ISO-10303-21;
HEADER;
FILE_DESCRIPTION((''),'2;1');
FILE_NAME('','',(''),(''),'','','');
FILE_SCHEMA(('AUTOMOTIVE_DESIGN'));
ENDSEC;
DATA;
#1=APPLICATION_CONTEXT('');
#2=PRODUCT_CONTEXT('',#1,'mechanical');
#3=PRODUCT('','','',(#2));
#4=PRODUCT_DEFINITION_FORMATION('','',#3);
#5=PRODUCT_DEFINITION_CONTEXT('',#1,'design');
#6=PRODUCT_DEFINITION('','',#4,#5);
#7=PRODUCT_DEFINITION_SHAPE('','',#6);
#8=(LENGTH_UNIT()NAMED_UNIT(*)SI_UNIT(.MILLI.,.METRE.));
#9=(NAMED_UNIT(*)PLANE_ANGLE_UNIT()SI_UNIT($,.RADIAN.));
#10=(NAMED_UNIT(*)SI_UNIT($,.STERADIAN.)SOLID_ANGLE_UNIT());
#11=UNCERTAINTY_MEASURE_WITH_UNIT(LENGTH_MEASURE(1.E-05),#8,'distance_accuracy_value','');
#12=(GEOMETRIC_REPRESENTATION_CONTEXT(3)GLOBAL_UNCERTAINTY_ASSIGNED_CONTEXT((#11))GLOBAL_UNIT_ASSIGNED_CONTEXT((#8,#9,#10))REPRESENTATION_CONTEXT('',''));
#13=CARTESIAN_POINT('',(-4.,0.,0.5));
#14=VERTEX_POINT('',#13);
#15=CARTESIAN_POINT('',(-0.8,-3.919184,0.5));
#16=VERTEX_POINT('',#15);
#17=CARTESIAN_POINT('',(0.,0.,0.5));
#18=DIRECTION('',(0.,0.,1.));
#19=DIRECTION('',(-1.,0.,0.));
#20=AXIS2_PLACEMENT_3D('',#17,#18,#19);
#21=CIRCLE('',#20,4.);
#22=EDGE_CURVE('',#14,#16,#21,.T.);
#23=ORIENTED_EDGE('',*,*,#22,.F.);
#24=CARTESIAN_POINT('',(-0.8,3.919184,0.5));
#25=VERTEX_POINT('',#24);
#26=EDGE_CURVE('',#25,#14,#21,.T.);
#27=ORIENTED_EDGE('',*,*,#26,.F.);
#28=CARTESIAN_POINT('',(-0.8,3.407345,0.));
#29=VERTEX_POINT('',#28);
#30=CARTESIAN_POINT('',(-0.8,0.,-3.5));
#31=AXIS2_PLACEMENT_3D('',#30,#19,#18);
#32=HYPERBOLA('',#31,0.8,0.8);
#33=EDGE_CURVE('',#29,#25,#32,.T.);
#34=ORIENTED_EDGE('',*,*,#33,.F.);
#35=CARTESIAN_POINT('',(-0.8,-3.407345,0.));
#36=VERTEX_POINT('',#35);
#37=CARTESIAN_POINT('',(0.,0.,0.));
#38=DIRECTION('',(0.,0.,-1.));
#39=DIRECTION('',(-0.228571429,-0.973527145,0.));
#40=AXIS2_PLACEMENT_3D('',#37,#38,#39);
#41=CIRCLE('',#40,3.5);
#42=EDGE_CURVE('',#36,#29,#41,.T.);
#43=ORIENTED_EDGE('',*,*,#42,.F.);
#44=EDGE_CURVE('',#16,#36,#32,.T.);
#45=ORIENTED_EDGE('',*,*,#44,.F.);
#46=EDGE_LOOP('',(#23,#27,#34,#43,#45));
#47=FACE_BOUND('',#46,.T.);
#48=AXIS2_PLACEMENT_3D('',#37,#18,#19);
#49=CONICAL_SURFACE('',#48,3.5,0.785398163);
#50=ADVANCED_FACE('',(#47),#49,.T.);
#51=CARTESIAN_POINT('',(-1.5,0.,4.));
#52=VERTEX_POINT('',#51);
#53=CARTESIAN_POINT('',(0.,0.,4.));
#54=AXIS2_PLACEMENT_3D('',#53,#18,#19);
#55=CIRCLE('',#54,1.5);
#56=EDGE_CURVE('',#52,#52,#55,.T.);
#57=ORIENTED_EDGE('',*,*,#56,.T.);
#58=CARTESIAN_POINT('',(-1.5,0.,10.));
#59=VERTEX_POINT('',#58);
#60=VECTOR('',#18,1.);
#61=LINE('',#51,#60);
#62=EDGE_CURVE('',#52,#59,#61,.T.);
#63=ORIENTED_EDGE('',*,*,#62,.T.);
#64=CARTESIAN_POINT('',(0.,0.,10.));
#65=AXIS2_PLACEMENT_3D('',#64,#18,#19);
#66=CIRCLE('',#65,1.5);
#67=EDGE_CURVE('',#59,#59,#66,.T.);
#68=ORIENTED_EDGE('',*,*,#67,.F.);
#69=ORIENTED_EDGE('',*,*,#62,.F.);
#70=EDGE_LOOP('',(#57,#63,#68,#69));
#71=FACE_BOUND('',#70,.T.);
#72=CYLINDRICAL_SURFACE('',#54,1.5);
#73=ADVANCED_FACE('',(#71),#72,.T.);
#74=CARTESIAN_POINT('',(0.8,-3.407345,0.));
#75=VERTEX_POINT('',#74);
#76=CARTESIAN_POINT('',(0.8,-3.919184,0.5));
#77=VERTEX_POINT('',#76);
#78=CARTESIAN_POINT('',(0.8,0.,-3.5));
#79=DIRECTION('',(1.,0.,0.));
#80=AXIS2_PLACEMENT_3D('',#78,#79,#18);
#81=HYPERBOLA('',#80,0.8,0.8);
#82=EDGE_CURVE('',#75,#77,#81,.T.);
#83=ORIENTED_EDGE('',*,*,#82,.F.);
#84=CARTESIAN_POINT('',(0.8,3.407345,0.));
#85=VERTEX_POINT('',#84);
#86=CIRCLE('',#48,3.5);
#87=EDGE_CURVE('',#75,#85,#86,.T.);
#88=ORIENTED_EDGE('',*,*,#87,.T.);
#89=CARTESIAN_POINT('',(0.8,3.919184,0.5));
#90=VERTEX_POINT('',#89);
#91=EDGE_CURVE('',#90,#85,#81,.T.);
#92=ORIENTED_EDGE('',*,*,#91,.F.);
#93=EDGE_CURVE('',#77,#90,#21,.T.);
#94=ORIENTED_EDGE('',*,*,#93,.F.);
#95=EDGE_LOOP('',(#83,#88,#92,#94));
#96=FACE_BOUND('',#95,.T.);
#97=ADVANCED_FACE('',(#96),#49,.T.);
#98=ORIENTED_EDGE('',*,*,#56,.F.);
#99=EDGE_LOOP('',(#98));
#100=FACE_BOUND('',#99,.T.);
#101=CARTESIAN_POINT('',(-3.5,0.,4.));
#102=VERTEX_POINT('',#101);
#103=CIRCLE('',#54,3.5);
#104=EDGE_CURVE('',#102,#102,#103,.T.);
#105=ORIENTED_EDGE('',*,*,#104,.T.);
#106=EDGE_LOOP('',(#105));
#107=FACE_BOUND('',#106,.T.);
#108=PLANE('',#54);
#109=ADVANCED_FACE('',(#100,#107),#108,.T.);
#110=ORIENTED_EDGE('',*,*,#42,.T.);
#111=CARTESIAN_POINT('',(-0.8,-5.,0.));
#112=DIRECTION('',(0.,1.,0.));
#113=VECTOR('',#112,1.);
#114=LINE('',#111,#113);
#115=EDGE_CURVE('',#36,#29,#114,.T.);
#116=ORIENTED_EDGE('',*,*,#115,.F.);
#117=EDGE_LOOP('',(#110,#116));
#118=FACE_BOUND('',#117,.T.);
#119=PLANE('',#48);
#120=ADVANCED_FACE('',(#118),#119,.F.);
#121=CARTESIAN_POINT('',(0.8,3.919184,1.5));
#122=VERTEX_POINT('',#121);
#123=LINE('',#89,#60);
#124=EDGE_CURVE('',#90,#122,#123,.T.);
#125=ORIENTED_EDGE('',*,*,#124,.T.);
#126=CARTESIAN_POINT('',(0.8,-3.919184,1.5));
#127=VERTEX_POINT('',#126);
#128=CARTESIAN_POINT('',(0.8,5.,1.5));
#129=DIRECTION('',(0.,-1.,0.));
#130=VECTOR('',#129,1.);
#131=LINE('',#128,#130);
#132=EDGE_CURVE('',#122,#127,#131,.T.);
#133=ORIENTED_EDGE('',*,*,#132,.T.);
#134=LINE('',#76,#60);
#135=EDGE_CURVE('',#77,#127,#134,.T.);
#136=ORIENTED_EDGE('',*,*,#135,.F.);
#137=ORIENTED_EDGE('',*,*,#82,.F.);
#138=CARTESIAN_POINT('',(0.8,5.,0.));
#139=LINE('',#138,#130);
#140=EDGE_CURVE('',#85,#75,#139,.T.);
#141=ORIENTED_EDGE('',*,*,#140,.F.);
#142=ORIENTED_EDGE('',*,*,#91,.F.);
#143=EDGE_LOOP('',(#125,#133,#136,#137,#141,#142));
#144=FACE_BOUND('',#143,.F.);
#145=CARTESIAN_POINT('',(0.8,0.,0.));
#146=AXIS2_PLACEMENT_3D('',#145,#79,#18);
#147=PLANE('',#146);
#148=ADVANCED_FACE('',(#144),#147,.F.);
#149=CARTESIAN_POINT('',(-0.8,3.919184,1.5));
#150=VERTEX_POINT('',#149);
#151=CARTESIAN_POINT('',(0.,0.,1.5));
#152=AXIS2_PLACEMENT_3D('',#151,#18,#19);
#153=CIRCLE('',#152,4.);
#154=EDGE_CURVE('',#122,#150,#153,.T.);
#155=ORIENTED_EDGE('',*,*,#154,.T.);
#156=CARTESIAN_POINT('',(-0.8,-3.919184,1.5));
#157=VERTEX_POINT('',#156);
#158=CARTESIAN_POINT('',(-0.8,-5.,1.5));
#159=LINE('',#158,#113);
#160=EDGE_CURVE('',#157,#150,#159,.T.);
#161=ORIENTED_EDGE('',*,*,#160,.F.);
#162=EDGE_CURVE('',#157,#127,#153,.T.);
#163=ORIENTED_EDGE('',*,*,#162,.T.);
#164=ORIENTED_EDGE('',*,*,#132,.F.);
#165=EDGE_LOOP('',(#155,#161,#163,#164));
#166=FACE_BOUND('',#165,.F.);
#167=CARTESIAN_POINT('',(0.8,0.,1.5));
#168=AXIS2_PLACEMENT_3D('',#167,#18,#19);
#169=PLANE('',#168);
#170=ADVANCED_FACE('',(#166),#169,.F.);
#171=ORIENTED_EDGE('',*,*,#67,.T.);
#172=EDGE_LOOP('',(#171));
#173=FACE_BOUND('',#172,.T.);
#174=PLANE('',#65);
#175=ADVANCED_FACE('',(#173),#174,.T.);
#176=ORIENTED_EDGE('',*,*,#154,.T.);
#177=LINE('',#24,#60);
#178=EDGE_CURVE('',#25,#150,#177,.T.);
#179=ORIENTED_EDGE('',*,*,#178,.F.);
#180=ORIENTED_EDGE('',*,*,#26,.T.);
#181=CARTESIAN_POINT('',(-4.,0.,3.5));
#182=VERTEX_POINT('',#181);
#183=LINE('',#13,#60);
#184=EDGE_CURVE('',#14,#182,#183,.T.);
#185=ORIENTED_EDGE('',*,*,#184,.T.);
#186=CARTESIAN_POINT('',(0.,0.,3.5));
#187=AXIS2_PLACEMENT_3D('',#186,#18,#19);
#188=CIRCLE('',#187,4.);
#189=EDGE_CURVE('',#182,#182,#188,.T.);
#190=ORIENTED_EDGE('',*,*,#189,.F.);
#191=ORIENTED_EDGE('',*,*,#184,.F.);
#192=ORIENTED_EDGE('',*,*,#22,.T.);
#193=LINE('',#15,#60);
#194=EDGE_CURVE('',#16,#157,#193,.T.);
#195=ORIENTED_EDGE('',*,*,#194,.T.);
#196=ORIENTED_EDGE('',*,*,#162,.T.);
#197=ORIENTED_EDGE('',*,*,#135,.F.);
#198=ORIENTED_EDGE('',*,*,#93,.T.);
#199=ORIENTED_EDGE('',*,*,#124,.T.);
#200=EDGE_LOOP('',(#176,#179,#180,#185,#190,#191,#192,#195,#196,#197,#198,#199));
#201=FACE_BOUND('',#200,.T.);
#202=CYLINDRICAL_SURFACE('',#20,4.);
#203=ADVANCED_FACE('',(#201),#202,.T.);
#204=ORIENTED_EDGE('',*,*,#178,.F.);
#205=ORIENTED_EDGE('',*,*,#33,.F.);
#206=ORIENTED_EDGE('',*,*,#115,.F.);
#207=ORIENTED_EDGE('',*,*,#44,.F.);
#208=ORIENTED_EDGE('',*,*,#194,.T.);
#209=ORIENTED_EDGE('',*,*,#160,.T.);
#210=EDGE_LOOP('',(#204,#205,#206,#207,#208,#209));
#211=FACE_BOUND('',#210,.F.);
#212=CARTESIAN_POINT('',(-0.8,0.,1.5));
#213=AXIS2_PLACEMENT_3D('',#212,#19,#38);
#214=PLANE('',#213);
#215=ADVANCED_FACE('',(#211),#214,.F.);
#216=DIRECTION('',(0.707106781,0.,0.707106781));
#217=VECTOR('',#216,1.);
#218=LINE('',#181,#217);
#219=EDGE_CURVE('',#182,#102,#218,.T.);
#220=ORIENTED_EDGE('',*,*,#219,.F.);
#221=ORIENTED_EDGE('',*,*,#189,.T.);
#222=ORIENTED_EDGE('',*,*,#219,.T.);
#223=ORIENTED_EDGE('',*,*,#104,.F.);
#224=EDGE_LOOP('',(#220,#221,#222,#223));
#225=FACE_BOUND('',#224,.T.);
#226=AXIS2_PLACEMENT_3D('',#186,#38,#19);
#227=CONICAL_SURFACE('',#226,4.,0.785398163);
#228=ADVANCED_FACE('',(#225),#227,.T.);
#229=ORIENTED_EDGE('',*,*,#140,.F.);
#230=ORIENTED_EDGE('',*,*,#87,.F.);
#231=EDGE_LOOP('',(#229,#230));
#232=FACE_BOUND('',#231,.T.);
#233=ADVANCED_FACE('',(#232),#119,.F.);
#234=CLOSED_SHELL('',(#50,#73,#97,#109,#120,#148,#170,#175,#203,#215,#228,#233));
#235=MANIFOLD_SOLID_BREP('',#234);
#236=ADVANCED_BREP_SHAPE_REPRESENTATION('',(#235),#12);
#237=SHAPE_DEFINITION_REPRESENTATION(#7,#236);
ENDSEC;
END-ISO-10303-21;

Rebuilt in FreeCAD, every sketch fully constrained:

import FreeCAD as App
import Part
import Sketcher

V = App.Vector
Q = App.Units.Quantity


def add_polygon(sketch, points):
    """Adds a closed chain of lines whose ends are joined by coincident constraints."""
    first, n = sketch.GeometryCount, len(points)
    for a, b in zip(points, points[1:] + points[:1]):
        sketch.addGeometry(Part.LineSegment(App.Vector(*a, 0), App.Vector(*b, 0)), False)
    for i in range(n):
        sketch.addConstraint(Sketcher.Constraint("Coincident", first + i, 2, first + (i + 1) % n, 1))

doc = App.newDocument("Part")
body = doc.addObject("PartDesign::Body", "Body")

sketch1 = doc.addObject("Sketcher::SketchObject", "Sketch")
body.addObject(sketch1)
sketch1.AttachmentSupport = (doc.XZ_Plane, [""])
sketch1.MapMode = "FlatFace"
add_polygon(sketch1, [(0, 0), (-3.5, 0), (-4, 0.5), (-4, 3.5), (-3.5, 4), (-1.5, 4), (-1.5, 10), (0, 10)])
sketch1.addConstraint(Sketcher.Constraint("Horizontal", 0))
sketch1.addConstraint(Sketcher.Constraint("Vertical", 2))
sketch1.addConstraint(Sketcher.Constraint("Horizontal", 4))
sketch1.addConstraint(Sketcher.Constraint("Vertical", 5))
sketch1.addConstraint(Sketcher.Constraint("Horizontal", 6))
sketch1.addConstraint(Sketcher.Constraint("Vertical", 7))
sketch1.addConstraint(Sketcher.Constraint("Coincident", 7, 2, -1, 1))
sketch1.addConstraint(Sketcher.Constraint("Perpendicular", 1, 3))
sketch1.addConstraint(Sketcher.Constraint("Vertical", 0, 2, 3, 2))
sketch1.addConstraint(Sketcher.Constraint("Equal", 1, 3))
sketch1.addConstraint(Sketcher.Constraint("DistanceY", 2, 1, 2, 2, Q("3 mm")))
sketch1.addConstraint(Sketcher.Constraint("DistanceY", 5, 1, 5, 2, Q("6 mm")))
sketch1.addConstraint(Sketcher.Constraint("DistanceX", 6, 1, 6, 2, Q("1.5 mm")))
sketch1.addConstraint(Sketcher.Constraint("DistanceX", 1, 2, -1, 1, Q("4 mm")))
sketch1.addConstraint(Sketcher.Constraint("DistanceY", -1, 1, 3, 2, Q("4 mm")))
revolution = doc.addObject("PartDesign::Revolution", "Revolution")
body.addObject(revolution)
revolution.Profile = sketch1
revolution.ReferenceAxis = (sketch1, ["V_Axis"])
revolution.Angle = 360

sketch2 = doc.addObject("Sketcher::SketchObject", "Sketch001")
body.addObject(sketch2)
sketch2.AttachmentSupport = (doc.XZ_Plane, [""])
sketch2.MapMode = "FlatFace"
add_polygon(sketch2, [(0.8, 0), (-0.8, 0), (-0.8, 1.5), (0.8, 1.5)])
sketch2.addConstraint(Sketcher.Constraint("Horizontal", 0))
sketch2.addConstraint(Sketcher.Constraint("Vertical", 1))
sketch2.addConstraint(Sketcher.Constraint("Horizontal", 2))
sketch2.addConstraint(Sketcher.Constraint("Vertical", 3))
sketch2.addConstraint(Sketcher.Constraint("Symmetric", 0, 2, 3, 2, -1, 1))
sketch2.addConstraint(Sketcher.Constraint("DistanceX", 0, 2, 0, 1, Q("1.6 mm")))
sketch2.addConstraint(Sketcher.Constraint("DistanceY", 1, 1, 1, 2, Q("1.5 mm")))
pocket1 = doc.addObject("PartDesign::Pocket", "Pocket")
body.addObject(pocket1)
pocket1.Profile = sketch2
pocket1.Type = "ThroughAll"
pocket1.Midplane = True

doc.recompute()
